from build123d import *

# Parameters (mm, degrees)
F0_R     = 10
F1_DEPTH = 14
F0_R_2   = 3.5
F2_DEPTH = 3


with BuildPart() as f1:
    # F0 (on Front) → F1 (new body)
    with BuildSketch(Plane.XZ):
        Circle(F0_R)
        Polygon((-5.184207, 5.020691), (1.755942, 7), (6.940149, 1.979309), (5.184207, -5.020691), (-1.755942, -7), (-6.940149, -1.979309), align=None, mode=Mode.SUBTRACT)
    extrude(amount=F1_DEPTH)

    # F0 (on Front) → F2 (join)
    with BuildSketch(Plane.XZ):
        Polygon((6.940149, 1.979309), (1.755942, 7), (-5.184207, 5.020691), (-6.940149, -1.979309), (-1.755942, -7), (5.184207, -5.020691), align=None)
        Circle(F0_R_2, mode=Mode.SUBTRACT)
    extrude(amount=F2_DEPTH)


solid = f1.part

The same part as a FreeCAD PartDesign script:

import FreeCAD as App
import Part
import Sketcher


def add_polygon(sketch, points):
    """Adds a closed chain of lines whose ends are joined by coincident constraints."""
    first, n = sketch.GeometryCount, len(points)
    for a, b in zip(points, points[1:] + points[:1]):
        sketch.addGeometry(Part.LineSegment(App.Vector(*a, 0), App.Vector(*b, 0)), False)
    for i in range(n):
        sketch.addConstraint(Sketcher.Constraint("Coincident", first + i, 2, first + (i + 1) % n, 1))

doc = App.newDocument("Part")
body = doc.addObject("PartDesign::Body", "Body")

# Sketch on XZ plane
sketch1 = body.newObject("Sketcher::SketchObject", "Sketch")
sketch1.AttachmentSupport = (doc.getObject("XZ_Plane"), [""])
sketch1.MapMode = "FlatFace"
sketch1.addGeometry(Part.Circle(App.Vector(0, 0, 0), App.Vector(0, 0, 1), 10), False)  # 0
add_polygon(sketch1, [(-7, -2), (-5, 5), (2, 7), (7, 2), (5, -5), (-2, -7)])  # lines 1-6
sketch1.addConstraint([
    Sketcher.Constraint("Coincident", 0, 3, -1, 1),
    Sketcher.Constraint("Symmetric", 1, 2, 4, 2, -1, 1),
    Sketcher.Constraint("Symmetric", 2, 2, 5, 2, -1, 1),
    Sketcher.Constraint("Symmetric", 3, 2, 6, 2, -1, 1),
    Sketcher.Constraint("Equal", 1, 2),
    Sketcher.Constraint("Equal", 2, 3),
    Sketcher.Constraint("Diameter", 0, 20.0),
    Sketcher.Constraint("DistanceY", -1, 1, 2, 2, 7.0),
    Sketcher.Constraint("DistanceY", 4, 2, 3, 2, 7.0),
    Sketcher.Constraint("Distance", 1, 7.216878),
    Sketcher.Constraint("DistanceY", -1, 1, 1, 2, 5.020691),
])
pad1 = body.newObject("PartDesign::Pad", "Pad")
pad1.Profile = sketch1
pad1.Length = 14

# Sketch on XZ plane
sketch2 = body.newObject("Sketcher::SketchObject", "Sketch001")
sketch2.AttachmentSupport = (doc.getObject("XZ_Plane"), [""])
sketch2.MapMode = "FlatFace"
add_polygon(sketch2, [(6.9, 2), (1.8, 7), (-5.2, 5), (-6.9, -2), (-1.8, -7), (5.2, -5)])  # lines 0-5
sketch2.addGeometry(Part.Circle(App.Vector(0, 0, 0), App.Vector(0, 0, 1), 3.5), False)  # 6
sketch2.addConstraint([
    Sketcher.Constraint("Coincident", 6, 3, -1, 1),
    Sketcher.Constraint("Symmetric", 0, 2, 3, 2, -1, 1),
    Sketcher.Constraint("Symmetric", 1, 2, 4, 2, -1, 1),
    Sketcher.Constraint("Symmetric", 2, 2, 5, 2, -1, 1),
    Sketcher.Constraint("Equal", 0, 1),
    Sketcher.Constraint("Equal", 1, 2),
    Sketcher.Constraint("Diameter", 6, 7.0),
    Sketcher.Constraint("DistanceY", -1, 1, 0, 2, 7.0),
    Sketcher.Constraint("DistanceY", 2, 2, 1, 2, 7.0),
    Sketcher.Constraint("Distance", 0, 7.216879),
    Sketcher.Constraint("DistanceX", -1, 1, 0, 2, 1.755942),
])
pad2 = body.newObject("PartDesign::Pad", "Pad001")
pad2.Profile = sketch2
pad2.Length = 3

doc.recompute()
